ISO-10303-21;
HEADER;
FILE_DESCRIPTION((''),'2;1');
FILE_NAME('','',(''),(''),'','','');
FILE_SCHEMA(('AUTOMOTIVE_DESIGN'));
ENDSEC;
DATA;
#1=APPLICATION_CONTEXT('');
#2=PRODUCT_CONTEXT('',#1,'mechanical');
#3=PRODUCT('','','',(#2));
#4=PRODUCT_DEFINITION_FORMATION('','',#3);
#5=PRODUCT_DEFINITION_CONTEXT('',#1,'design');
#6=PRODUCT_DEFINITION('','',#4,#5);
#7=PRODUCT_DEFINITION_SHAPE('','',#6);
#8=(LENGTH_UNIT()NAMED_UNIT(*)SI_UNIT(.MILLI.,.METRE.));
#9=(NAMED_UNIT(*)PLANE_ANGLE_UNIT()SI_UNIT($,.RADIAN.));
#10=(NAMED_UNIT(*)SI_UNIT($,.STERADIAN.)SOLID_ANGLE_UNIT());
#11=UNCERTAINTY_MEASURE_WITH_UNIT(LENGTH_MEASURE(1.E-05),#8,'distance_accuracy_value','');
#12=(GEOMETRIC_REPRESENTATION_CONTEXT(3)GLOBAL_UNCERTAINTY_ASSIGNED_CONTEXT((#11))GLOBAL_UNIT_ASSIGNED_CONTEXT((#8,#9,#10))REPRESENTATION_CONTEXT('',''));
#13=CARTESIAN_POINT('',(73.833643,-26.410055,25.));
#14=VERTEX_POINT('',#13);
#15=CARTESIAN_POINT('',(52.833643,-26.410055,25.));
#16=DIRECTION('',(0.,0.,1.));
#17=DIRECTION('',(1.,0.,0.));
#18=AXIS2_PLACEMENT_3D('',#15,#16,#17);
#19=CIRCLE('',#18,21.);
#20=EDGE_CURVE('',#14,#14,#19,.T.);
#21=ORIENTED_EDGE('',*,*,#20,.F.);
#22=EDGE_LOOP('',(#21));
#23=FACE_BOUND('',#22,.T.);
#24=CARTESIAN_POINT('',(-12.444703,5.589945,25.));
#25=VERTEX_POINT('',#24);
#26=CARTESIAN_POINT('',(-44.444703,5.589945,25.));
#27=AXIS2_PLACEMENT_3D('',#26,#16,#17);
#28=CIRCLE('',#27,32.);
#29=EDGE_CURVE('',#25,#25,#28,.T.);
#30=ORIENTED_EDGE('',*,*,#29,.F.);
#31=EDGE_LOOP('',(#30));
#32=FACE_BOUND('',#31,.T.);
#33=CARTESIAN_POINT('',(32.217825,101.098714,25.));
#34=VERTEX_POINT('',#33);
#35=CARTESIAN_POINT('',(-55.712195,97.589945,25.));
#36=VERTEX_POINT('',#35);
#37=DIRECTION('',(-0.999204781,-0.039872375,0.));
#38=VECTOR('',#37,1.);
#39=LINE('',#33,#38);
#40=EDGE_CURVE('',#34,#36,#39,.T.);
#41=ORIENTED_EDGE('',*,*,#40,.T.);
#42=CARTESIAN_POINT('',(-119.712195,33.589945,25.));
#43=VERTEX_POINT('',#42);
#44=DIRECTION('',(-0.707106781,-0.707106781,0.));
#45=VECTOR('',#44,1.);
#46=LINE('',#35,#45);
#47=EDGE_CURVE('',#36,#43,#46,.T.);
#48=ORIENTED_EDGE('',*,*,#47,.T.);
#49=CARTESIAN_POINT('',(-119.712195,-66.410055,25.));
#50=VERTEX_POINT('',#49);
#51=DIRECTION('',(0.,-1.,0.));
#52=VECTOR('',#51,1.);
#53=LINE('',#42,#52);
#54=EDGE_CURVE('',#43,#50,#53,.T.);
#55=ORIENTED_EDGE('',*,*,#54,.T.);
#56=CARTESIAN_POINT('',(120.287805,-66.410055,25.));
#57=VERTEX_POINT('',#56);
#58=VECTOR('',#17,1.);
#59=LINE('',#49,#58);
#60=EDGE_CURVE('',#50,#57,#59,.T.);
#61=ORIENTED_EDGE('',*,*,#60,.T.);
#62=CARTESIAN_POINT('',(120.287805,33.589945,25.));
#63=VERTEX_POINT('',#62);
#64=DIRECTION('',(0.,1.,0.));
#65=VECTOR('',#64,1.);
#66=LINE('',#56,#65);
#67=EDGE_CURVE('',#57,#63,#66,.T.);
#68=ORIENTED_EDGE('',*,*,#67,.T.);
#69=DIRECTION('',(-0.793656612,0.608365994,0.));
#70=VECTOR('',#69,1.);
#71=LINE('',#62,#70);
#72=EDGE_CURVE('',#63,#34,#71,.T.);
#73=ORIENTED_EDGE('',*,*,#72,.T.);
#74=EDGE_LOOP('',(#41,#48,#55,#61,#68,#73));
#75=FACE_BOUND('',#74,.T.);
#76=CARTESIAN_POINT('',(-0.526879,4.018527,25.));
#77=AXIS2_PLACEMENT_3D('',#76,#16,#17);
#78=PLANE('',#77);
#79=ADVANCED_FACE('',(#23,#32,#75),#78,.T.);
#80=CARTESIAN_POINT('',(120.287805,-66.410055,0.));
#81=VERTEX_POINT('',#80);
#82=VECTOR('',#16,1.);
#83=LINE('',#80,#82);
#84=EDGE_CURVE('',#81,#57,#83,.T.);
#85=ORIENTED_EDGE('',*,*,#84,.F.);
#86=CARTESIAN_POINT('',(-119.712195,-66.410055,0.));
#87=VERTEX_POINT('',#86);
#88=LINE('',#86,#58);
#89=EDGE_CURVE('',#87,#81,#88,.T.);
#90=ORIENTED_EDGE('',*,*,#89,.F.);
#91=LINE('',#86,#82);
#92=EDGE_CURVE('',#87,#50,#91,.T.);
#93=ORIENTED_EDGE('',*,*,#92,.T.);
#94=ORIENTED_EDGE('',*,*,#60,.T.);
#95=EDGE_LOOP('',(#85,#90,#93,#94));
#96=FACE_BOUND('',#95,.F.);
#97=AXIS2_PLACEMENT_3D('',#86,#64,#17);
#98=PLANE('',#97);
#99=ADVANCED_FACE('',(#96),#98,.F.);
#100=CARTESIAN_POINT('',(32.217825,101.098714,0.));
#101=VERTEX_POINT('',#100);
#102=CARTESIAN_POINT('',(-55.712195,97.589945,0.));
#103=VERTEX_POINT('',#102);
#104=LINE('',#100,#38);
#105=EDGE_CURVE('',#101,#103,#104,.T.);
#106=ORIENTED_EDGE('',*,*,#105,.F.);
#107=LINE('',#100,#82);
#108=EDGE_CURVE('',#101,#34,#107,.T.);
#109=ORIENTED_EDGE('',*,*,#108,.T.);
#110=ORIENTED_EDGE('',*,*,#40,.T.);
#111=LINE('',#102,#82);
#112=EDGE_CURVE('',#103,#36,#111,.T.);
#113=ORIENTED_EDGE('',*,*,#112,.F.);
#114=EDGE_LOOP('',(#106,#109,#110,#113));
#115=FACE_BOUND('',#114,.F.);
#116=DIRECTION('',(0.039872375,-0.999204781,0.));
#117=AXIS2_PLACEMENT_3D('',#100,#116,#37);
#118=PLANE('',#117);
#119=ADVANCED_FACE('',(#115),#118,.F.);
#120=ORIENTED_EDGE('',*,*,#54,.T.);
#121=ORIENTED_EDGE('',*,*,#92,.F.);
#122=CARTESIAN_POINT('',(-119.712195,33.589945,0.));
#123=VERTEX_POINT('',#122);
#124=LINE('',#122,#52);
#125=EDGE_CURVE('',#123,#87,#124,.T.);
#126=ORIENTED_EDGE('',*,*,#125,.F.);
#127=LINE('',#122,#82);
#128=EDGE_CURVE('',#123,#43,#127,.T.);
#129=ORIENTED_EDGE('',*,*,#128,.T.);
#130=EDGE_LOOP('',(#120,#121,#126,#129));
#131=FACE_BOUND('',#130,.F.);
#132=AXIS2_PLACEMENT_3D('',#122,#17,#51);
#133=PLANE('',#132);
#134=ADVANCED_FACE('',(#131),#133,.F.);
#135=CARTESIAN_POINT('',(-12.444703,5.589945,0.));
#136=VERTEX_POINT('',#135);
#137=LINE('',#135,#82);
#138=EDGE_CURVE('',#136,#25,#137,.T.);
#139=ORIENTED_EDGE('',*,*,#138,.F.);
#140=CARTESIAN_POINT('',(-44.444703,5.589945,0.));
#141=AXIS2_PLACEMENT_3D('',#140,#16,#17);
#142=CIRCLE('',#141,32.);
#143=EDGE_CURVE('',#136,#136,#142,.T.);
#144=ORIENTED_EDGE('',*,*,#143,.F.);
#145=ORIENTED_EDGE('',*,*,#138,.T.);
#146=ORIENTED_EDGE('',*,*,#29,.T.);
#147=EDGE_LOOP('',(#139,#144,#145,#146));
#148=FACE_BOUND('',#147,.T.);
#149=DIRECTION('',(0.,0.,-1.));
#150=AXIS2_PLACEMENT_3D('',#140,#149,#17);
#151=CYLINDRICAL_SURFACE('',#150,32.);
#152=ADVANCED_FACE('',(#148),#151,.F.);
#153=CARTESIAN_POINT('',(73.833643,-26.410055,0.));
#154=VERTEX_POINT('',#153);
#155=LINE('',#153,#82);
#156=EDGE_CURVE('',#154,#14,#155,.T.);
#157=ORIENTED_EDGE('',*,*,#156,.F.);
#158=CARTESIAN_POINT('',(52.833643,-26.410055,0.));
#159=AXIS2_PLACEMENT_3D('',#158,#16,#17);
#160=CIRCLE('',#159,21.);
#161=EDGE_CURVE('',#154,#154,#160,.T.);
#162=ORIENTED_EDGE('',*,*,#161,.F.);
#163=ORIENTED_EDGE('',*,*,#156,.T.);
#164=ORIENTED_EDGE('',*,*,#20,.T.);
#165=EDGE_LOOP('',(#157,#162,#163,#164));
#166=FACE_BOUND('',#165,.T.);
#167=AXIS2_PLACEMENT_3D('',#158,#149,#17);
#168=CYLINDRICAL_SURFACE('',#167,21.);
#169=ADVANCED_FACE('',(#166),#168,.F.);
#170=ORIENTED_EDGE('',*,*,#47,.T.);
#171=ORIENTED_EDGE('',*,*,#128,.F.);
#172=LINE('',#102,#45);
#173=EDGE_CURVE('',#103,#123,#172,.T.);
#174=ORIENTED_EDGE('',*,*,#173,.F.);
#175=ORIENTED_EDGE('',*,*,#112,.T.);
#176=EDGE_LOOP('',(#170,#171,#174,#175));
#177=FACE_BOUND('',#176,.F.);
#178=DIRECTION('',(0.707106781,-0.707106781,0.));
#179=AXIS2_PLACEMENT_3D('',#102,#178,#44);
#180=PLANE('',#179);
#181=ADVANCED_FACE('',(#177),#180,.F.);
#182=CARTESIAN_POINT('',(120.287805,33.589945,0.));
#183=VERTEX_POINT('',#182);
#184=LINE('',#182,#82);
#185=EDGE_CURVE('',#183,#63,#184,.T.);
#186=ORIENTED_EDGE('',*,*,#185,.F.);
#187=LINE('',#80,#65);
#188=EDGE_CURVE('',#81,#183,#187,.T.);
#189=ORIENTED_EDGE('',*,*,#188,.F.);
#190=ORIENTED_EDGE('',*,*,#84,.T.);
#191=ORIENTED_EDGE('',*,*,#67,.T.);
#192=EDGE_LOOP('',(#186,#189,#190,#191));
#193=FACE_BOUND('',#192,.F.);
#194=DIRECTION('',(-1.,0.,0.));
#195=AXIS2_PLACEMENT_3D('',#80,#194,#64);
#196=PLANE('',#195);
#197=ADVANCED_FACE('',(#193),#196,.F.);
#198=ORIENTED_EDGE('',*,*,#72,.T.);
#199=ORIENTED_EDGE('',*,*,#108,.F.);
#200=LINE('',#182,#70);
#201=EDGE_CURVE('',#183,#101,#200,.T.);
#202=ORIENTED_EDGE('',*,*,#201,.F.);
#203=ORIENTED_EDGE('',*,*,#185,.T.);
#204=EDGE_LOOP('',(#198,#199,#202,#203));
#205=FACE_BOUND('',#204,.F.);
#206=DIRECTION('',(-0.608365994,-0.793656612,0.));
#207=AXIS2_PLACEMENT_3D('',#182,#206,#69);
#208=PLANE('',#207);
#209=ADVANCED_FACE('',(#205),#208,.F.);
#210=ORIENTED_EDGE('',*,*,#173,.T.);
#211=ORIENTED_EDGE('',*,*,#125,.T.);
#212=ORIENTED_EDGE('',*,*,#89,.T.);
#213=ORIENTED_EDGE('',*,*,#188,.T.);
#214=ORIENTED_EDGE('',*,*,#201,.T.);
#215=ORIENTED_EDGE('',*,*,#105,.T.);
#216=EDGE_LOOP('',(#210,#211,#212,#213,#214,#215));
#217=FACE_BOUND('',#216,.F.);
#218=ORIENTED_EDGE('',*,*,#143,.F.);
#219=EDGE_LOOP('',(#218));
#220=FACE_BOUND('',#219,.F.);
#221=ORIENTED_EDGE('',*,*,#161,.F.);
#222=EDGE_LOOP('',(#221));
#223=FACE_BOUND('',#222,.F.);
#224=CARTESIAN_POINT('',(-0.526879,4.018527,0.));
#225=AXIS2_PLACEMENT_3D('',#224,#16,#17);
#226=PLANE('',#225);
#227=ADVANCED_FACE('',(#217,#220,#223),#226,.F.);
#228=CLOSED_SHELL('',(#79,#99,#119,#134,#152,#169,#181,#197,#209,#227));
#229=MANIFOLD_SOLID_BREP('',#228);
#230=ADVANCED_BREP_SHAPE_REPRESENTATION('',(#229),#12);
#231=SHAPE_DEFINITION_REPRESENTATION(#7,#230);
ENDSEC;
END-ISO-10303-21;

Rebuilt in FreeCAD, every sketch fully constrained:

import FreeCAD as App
import Part
import Sketcher

V = App.Vector
Q = App.Units.Quantity

doc = App.newDocument("Part")
params = doc.addObject("Spreadsheet::Sheet", "Params")
for row, (alias, value) in enumerate([
    ("sketch1_diameter", "42 mm"),
    ("sketch1_diameter2", "64 mm"),
    ("sketch1_width", "240 mm"),
    ("sketch1_height", "100 mm"),
    ("sketch1_length", "87.999999 mm"),
    ("pad1_length", "25 mm"),
], start=1):
    params.set(f"A{row}", alias)
    params.set(f"B{row}", "=" + value)
    params.setAlias(f"B{row}", alias)

body = doc.addObject("PartDesign::Body", "Body")

sketch1 = body.newObject("Sketcher::SketchObject", "Sketch")
sketch1.AttachmentSupport = (doc.getObject("XY_Plane"), [""])
sketch1.MapMode = "FlatFace"
sketch1.addGeometry(Part.LineSegment(V(-56, 98, 0), V(-120, 34, 0)), False)
sketch1.addGeometry(Part.LineSegment(V(-120, 34, 0), V(-120, -66, 0)), False)
sketch1.addGeometry(Part.LineSegment(V(-120, -66, 0), V(120, -66, 0)), False)
sketch1.addGeometry(Part.LineSegment(V(120, -66, 0), V(120, 34, 0)), False)
sketch1.addGeometry(Part.LineSegment(V(120, 34, 0), V(32, 101, 0)), False)
sketch1.addGeometry(Part.LineSegment(V(32, 101, 0), V(-56, 98, 0)), False)
sketch1.addGeometry(Part.Circle(V(53, -26, 0), V(0, 0, 1), 21), False)
sketch1.addGeometry(Part.Circle(V(-44, 6, 0), V(0, 0, 1), 32), False)
sketch1.addConstraint(Sketcher.Constraint("Coincident", 0, 2, 1, 1))
sketch1.addConstraint(Sketcher.Constraint("Coincident", 1, 2, 2, 1))
sketch1.addConstraint(Sketcher.Constraint("Coincident", 2, 2, 3, 1))
sketch1.addConstraint(Sketcher.Constraint("Coincident", 3, 2, 4, 1))
sketch1.addConstraint(Sketcher.Constraint("Coincident", 4, 2, 5, 1))
sketch1.addConstraint(Sketcher.Constraint("Coincident", 5, 2, 0, 1))
sketch1.addConstraint(Sketcher.Constraint("Vertical", 1))
sketch1.addConstraint(Sketcher.Constraint("Horizontal", 2))
sketch1.addConstraint(Sketcher.Constraint("Vertical", 3))
sketch1.addConstraint(Sketcher.Constraint("Horizontal", 0, 2, 3, 2))
sketch1.addConstraint(Sketcher.Constraint("Diameter", 6, Q("42 mm")))
sketch1.addConstraint(Sketcher.Constraint("Diameter", 7, Q("64 mm")))
sketch1.addConstraint(Sketcher.Constraint("DistanceX", 2, 1, 2, 2, Q("240 mm")))
sketch1.addConstraint(Sketcher.Constraint("DistanceY", 1, 2, 1, 1, Q("100 mm")))
sketch1.addConstraint(Sketcher.Constraint("Angle", 0, Q("-135 deg")))
sketch1.addConstraint(Sketcher.Constraint("Distance", 5, Q("87.999999 mm")))
sketch1.addConstraint(Sketcher.Constraint("DistanceY", 6, 3, 7, 3, Q("32 mm")))
sketch1.addConstraint(Sketcher.Constraint("DistanceY", 7, 3, 0, 2, Q("28 mm")))
sketch1.addConstraint(Sketcher.Constraint("DistanceX", 0, 2, 5, 2, Q("64 mm")))
sketch1.addConstraint(Sketcher.Constraint("Distance", 4, Q("110.967361 mm")))
sketch1.addConstraint(Sketcher.Constraint("DistanceX", 0, 2, 6, 3, Q("172.545838 mm")))
sketch1.addConstraint(Sketcher.Constraint("DistanceX", 7, 3, 2, 2, Q("164.732508 mm")))
sketch1.addConstraint(Sketcher.Constraint("DistanceX", -1, 1, 6, 3, Q("52.833643 mm")))
sketch1.addConstraint(Sketcher.Constraint("DistanceY", 6, 3, -1, 1, Q("26.410055 mm")))
sketch1.setExpression("Constraints[10]", "Params.sketch1_diameter")
sketch1.setExpression("Constraints[11]", "Params.sketch1_diameter2")
sketch1.setExpression("Constraints[12]", "Params.sketch1_width")
sketch1.setExpression("Constraints[13]", "Params.sketch1_height")
sketch1.setExpression("Constraints[15]", "Params.sketch1_length")
pad1 = body.newObject("PartDesign::Pad", "Pad")
pad1.Profile = sketch1
pad1.setExpression("Length", "Params.pad1_length")

doc.recompute()
